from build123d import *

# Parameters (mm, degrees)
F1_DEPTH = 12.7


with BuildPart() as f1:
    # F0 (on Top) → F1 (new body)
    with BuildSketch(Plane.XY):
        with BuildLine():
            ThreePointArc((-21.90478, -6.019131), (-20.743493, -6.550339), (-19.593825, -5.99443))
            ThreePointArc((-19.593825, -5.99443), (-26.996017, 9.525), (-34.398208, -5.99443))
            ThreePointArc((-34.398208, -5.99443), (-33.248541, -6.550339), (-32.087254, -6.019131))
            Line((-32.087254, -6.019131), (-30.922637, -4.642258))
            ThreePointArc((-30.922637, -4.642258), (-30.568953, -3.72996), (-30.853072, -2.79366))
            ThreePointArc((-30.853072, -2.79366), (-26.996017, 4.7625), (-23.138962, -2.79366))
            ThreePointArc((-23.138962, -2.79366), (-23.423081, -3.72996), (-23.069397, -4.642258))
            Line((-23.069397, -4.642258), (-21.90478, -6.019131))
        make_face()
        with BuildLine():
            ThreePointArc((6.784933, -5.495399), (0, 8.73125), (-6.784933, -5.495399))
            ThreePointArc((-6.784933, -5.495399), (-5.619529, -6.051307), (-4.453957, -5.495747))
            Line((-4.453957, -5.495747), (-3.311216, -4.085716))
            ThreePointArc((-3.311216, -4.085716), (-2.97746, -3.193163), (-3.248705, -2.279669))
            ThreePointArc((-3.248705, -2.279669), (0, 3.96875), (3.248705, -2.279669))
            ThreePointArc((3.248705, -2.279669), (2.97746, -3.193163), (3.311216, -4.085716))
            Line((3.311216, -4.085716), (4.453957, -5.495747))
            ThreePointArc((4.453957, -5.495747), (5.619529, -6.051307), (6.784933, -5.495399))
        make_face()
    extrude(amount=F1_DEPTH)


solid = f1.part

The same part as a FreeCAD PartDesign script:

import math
import FreeCAD as App
import Part
import Sketcher
from FreeCAD import Vector
Q = App.Units.Quantity

doc = App.newDocument("Part")
body = doc.addObject("PartDesign::Body", "Body")
body.AllowCompound = True

sketch1 = body.newObject("Sketcher::SketchObject", "Sketch")
sketch1.AttachmentSupport = (doc.getObject("XY_Plane"), [""])
sketch1.MapMode = "FlatFace"
sketch1.addGeometry([
    Part.ArcOfCircle(Part.Circle(Vector(-20.759525, -5.050423, 0), Vector(0, 0, 1), 1.500002), math.radians(-139.773972), math.radians(-39.001245)),
    Part.ArcOfCircle(Part.Circle(Vector(-26.996016, 0, 0), Vector(0, 0, 1), 9.525), math.radians(-39.001184), math.radians(219.001184)),
    Part.ArcOfCircle(Part.Circle(Vector(-33.232509, -5.050424, 0), Vector(0, 0, 1), 1.500001), math.radians(-140.998775), math.radians(-40.226009)),
    Part.LineSegment(Vector(-32.087254, -6.019131, 0), Vector(-30.922637, -4.642258, 0)),
    Part.ArcOfCircle(Part.Circle(Vector(-32.06789, -3.673553, 0), Vector(0, 0, 1), 1.499998), math.radians(-40.225996), math.radians(35.915809)),
    Part.ArcOfCircle(Part.Circle(Vector(-26.996017, 0, 0), Vector(0, 0, 1), 4.7625), math.radians(-35.915764), math.radians(215.915764)),
    Part.ArcOfCircle(Part.Circle(Vector(-21.924144, -3.673553, 0), Vector(0, 0, 1), 1.499998), math.radians(144.084191), math.radians(220.225996)),
    Part.LineSegment(Vector(-23.069397, -4.642258, 0), Vector(-21.90478, -6.019131, 0)),
    Part.ArcOfCircle(Part.Circle(Vector(0, 0, 0), Vector(0, 0, 1), 8.73125), math.radians(-39.00545), math.radians(219.00545)),
    Part.ArcOfCircle(Part.Circle(Vector(-5.619304, -4.551306, 0), Vector(0, 0, 1), 1.500001), math.radians(-140.994515), math.radians(-39.022593)),
    Part.LineSegment(Vector(-4.453957, -5.495747, 0), Vector(-3.311216, -4.085716, 0)),
    Part.ArcOfCircle(Part.Circle(Vector(-4.476562, -3.141276, 0), Vector(0, 0, 1), 1.499999), math.radians(-39.022622), math.radians(35.057955)),
    Part.ArcOfCircle(Part.Circle(Vector(0, 0, 0), Vector(0, 0, 1), 3.96875), math.radians(-35.057963), math.radians(215.057963)),
    Part.ArcOfCircle(Part.Circle(Vector(4.476562, -3.141276, 0), Vector(0, 0, 1), 1.499999), math.radians(144.942045), math.radians(219.022622)),
    Part.LineSegment(Vector(3.311216, -4.085716, 0), Vector(4.453957, -5.495747, 0)),
    Part.ArcOfCircle(Part.Circle(Vector(5.619304, -4.551306, 0), Vector(0, 0, 1), 1.500001), math.radians(-140.977407), math.radians(-39.005485)),
], False)
sketch1.addConstraint([
    Sketcher.Constraint("Tangent", 0, 2, 1, 1),
    Sketcher.Constraint("Tangent", 1, 2, 2, 1),
    Sketcher.Constraint("Tangent", 2, 2, 3, 1),
    Sketcher.Constraint("Tangent", 3, 2, 4, 1),
    Sketcher.Constraint("Tangent", 4, 2, 5, 2),
    Sketcher.Constraint("Tangent", 5, 1, 6, 1),
    Sketcher.Constraint("Tangent", 6, 2, 7, 1),
    Sketcher.Constraint("Tangent", 7, 2, 0, 1),
    Sketcher.Constraint("Tangent", 8, 2, 9, 1),
    Sketcher.Constraint("Tangent", 9, 2, 10, 1),
    Sketcher.Constraint("Tangent", 10, 2, 11, 1),
    Sketcher.Constraint("Tangent", 11, 2, 12, 2),
    Sketcher.Constraint("Tangent", 12, 1, 13, 1),
    Sketcher.Constraint("Tangent", 13, 2, 14, 1),
    Sketcher.Constraint("Tangent", 14, 2, 15, 1),
    Sketcher.Constraint("Tangent", 15, 2, 8, 1),
    Sketcher.Constraint("Coincident", 8, 3, -1, 1),
    Sketcher.Constraint("Coincident", 12, 3, -1, 1),
    Sketcher.Constraint("Coincident", 5, 3, 1, 3),
    Sketcher.Constraint("Equal", 0, 2),
    Sketcher.Constraint("Equal", 4, 6),
    Sketcher.Constraint("Equal", 2, 9),
    Sketcher.Constraint("Equal", 9, 11),
    Sketcher.Constraint("Equal", 11, 13),
    Sketcher.Constraint("Equal", 13, 15),
    Sketcher.Constraint("Symmetric", 10, 2, 13, 2, -2),
    Sketcher.Constraint("PointOnObject", 1, 3, -1),
    Sketcher.Constraint("Horizontal", 0, 3, 2, 3),
    Sketcher.Constraint("Horizontal", 4, 3, 6, 3),
    Sketcher.Constraint("Radius", 1, Q("0.375 in")),
    Sketcher.Constraint("Radius", 5, Q("0.1875 in")),
    Sketcher.Constraint("Radius", 8, Q("0.34375 in")),
    Sketcher.Constraint("Radius", 12, Q("0.15625 in")),
    Sketcher.Constraint("Radius", 0, 1.500002),
    Sketcher.Constraint("Radius", 4, 1.499998),
    Sketcher.Constraint("DistanceY", 8, 2, -1, 1, 5.495399),
    Sketcher.Constraint("DistanceX", 0, 3, 0, 2, 1.1657),
    Sketcher.Constraint("DistanceY", 2, 2, 1, 2, 0.024701),
    Sketcher.Constraint("DistanceX", 9, 3, 11, 2, 2.370599),
    Sketcher.Constraint("DistanceX", 2, 3, -1, 1, 33.232509),
])
pad1 = body.newObject("PartDesign::Pad", "Pad")
pad1.Profile = sketch1
pad1.Length = Q("0.5 in")

doc.recompute()
